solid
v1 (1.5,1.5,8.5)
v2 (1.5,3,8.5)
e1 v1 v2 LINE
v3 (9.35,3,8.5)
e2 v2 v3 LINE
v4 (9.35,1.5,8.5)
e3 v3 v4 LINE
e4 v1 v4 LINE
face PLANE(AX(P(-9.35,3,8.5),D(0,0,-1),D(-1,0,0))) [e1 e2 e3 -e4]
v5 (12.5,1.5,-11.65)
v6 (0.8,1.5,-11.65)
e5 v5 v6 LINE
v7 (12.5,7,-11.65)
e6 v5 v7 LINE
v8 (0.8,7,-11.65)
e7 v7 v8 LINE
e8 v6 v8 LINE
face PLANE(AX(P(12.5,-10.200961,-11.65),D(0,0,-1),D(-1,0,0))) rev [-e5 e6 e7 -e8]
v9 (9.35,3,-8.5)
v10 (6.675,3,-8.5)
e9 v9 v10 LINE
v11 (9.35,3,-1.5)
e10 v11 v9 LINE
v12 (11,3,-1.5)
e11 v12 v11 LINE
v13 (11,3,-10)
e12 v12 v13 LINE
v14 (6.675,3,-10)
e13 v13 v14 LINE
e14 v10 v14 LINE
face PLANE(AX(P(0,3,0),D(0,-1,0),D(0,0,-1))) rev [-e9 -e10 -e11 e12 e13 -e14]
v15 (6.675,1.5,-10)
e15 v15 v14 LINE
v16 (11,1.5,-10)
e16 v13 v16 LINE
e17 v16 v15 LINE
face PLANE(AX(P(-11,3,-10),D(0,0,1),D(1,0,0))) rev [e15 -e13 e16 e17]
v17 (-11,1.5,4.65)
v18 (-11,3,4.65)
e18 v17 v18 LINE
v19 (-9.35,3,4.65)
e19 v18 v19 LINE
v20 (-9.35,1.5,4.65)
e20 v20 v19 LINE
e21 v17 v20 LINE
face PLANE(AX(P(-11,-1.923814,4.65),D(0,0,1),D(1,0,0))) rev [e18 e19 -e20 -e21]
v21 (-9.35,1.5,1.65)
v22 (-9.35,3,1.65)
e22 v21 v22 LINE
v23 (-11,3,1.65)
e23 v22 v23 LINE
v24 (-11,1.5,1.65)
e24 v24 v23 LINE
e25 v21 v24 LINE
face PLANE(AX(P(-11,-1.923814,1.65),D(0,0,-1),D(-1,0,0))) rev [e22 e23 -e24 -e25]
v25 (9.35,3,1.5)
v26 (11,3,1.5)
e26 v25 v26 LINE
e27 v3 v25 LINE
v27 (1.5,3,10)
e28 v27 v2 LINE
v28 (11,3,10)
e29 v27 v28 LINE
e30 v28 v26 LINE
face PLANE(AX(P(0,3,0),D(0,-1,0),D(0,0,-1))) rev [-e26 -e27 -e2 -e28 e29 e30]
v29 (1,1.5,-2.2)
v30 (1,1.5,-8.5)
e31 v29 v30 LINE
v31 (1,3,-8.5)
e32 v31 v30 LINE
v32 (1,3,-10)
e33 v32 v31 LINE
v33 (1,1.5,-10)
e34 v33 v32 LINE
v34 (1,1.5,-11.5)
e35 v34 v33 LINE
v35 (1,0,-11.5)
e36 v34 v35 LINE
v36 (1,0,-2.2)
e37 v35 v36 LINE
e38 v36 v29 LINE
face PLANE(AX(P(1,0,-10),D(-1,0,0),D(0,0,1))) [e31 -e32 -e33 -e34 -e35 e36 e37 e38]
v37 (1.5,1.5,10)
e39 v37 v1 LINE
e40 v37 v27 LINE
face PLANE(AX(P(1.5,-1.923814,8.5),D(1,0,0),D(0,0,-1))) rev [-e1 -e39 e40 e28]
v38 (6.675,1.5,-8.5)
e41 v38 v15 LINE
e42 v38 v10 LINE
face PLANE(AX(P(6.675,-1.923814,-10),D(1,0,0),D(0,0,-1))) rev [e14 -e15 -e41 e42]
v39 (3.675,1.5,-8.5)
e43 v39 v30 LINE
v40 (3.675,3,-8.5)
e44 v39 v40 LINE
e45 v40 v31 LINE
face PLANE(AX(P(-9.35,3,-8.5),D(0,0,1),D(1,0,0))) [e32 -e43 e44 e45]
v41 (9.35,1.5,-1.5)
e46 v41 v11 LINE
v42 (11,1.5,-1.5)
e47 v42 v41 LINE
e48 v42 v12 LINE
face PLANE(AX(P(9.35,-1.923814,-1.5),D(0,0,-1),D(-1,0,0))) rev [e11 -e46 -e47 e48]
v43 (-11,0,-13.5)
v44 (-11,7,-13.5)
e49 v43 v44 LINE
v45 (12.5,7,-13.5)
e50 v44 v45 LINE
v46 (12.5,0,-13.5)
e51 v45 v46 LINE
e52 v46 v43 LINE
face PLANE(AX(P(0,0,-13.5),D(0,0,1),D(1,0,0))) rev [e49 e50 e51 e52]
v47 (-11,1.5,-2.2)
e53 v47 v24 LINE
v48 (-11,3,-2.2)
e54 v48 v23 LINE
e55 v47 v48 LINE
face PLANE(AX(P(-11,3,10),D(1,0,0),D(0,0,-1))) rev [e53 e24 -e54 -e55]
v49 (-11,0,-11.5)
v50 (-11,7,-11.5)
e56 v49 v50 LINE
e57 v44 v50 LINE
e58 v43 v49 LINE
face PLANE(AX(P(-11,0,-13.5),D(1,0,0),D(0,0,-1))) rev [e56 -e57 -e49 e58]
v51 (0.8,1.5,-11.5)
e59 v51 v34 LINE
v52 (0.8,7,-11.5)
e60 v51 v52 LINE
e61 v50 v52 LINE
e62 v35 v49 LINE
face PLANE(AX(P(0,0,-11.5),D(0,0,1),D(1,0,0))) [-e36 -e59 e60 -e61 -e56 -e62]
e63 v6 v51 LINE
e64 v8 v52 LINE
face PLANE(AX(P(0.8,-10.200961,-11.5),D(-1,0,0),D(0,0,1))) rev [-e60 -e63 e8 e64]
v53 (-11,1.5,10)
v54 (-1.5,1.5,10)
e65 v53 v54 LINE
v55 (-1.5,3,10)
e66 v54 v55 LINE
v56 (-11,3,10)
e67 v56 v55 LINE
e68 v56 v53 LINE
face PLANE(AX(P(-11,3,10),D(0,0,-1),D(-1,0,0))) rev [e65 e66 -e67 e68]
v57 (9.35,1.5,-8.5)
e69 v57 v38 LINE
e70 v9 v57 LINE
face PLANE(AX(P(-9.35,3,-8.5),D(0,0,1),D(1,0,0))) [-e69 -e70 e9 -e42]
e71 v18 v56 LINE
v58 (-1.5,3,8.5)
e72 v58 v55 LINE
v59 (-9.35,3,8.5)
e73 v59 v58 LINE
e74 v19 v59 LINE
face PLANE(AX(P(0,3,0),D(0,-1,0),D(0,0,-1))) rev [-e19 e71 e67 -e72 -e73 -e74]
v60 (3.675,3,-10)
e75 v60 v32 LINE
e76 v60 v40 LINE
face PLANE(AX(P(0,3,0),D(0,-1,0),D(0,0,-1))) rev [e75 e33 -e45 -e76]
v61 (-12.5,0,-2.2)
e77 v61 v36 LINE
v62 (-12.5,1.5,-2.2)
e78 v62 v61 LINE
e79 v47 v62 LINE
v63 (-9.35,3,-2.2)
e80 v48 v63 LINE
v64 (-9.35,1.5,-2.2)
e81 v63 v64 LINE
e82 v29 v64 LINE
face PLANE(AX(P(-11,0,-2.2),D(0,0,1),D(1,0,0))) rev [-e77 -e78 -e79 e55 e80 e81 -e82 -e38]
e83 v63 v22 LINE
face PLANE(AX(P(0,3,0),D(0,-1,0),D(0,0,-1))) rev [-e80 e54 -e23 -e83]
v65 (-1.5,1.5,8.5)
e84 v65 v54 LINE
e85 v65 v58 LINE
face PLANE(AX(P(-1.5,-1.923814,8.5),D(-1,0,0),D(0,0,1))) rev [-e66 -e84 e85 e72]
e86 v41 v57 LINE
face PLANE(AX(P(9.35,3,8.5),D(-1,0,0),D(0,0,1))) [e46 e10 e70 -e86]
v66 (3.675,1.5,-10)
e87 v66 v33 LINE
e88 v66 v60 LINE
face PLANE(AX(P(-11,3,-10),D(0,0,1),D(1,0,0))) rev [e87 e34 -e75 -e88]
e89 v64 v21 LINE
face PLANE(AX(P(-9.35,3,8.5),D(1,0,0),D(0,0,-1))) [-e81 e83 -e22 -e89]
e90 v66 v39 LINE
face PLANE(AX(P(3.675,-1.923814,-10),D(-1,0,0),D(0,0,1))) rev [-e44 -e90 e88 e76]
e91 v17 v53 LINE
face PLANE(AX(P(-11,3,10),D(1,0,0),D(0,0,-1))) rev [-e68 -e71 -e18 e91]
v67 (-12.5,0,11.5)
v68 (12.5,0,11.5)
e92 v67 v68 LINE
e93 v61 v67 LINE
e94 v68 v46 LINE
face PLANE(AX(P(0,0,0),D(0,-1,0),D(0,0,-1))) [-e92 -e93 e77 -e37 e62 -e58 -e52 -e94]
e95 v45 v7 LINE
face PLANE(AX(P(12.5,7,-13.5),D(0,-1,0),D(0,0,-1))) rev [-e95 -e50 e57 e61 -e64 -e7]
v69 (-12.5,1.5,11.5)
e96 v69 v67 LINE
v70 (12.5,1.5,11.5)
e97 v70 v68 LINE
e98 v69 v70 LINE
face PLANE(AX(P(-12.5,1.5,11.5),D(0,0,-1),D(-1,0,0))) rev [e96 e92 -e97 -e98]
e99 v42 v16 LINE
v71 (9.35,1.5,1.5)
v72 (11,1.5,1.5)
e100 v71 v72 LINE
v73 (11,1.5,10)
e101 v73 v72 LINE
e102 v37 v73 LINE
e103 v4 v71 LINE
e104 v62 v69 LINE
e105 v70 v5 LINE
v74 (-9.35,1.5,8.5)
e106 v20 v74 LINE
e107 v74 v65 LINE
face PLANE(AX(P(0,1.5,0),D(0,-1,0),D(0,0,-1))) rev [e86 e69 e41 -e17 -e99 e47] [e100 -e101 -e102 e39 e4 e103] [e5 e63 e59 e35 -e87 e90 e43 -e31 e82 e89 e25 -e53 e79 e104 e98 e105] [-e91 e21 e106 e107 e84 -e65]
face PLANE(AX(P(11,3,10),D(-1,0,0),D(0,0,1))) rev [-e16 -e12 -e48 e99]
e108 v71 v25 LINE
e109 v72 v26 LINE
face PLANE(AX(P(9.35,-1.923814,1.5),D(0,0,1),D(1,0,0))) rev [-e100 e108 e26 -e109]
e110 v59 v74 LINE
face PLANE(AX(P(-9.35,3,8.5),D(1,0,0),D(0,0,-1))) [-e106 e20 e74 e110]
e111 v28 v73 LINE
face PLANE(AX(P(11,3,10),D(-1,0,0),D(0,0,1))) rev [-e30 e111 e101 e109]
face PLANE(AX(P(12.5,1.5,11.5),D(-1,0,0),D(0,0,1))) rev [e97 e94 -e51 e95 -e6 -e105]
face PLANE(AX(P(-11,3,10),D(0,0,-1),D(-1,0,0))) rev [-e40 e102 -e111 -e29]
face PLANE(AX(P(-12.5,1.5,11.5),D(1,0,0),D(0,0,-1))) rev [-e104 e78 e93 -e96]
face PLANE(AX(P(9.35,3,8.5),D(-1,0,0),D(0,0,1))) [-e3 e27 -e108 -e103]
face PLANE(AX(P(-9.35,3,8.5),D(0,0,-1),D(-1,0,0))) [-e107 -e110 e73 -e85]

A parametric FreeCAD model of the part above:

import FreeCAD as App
import Part
import Sketcher
from FreeCAD import Vector


def add_polygon(sketch, points):
    """Adds a closed chain of lines whose ends are joined by coincident constraints."""
    first, n = sketch.GeometryCount, len(points)
    for a, b in zip(points, points[1:] + points[:1]):
        sketch.addGeometry(Part.LineSegment(App.Vector(*a, 0), App.Vector(*b, 0)), False)
    for i in range(n):
        sketch.addConstraint(Sketcher.Constraint("Coincident", first + i, 2, first + (i + 1) % n, 1))

doc = App.newDocument("Part")
body = doc.addObject("PartDesign::Body", "Body")

sketch1 = body.newObject("Sketcher::SketchObject", "Sketch")
sketch1.AttachmentSupport = (doc.getObject("XZ_Plane"), [""])
sketch1.MapMode = "FlatFace"
add_polygon(sketch1, [(-12, -12), (-12, 12), (12, 12), (12, -12)])
sketch1.addConstraint([
    Sketcher.Constraint("Vertical", 0),
    Sketcher.Constraint("Horizontal", 1),
    Sketcher.Constraint("Vertical", 2),
    Sketcher.Constraint("Horizontal", 3),
    Sketcher.Constraint("Symmetric", 0, 2, 2, 2, -1, 1),
    Sketcher.Constraint("DistanceX", 1, 1, 1, 2, 25.0),
    Sketcher.Constraint("DistanceY", 0, 1, 0, 2, 23.0),
])
pad1 = body.newObject("PartDesign::Pad", "Pad")
pad1.Profile = sketch1
pad1.Length = 1.5
pad1.Reversed = True

sketch2 = body.newObject("Sketcher::SketchObject", "Sketch001")
sketch2.AttachmentSupport = (doc.getObject("XZ_Plane"), [""])
sketch2.MapMode = "FlatFace"
sketch2.AttachmentOffset = App.Placement(Vector(0, 0, -1.5), App.Rotation())
add_polygon(sketch2, [(-11, -10), (-11, 10), (11, 10), (11, -10)])
add_polygon(sketch2, [(9, 8), (-9, 8), (-9, -8), (9, -8)])
sketch2.addConstraint([
    Sketcher.Constraint("Vertical", 0),
    Sketcher.Constraint("Horizontal", 1),
    Sketcher.Constraint("Vertical", 2),
    Sketcher.Constraint("Horizontal", 3),
    Sketcher.Constraint("Horizontal", 4),
    Sketcher.Constraint("Vertical", 5),
    Sketcher.Constraint("Horizontal", 6),
    Sketcher.Constraint("Vertical", 7),
    Sketcher.Constraint("Symmetric", 0, 2, 2, 2, -1, 1),
    Sketcher.Constraint("Symmetric", 4, 2, 6, 2, -1, 1),
    Sketcher.Constraint("DistanceX", 1, 1, 1, 2, 22.0),
    Sketcher.Constraint("DistanceY", 0, 1, 0, 2, 20.0),
    Sketcher.Constraint("DistanceY", 5, 2, 5, 1, 17.0),
    Sketcher.Constraint("DistanceX", 4, 2, 4, 1, 18.7),
])
pad2 = body.newObject("PartDesign::Pad", "Pad001")
pad2.Profile = sketch2
pad2.Length = 1.5
pad2.Reversed = True

sketch3 = body.newObject("Sketcher::SketchObject", "Sketch002")
sketch3.AttachmentSupport = (doc.getObject("XZ_Plane"), [""])
sketch3.MapMode = "FlatFace"
sketch3.AttachmentOffset = App.Placement(Vector(0, 0, -1.5), App.Rotation())
add_polygon(sketch3, [(-11, -10), (-11, -2), (1, -2), (1, -10)])
sketch3.addConstraint([
    Sketcher.Constraint("Vertical", 0),
    Sketcher.Constraint("Horizontal", 1),
    Sketcher.Constraint("Vertical", 2),
    Sketcher.Constraint("Horizontal", 3),
    Sketcher.Constraint("DistanceX", 1, 1, 1, 2, 12.0),
    Sketcher.Constraint("DistanceY", 0, 1, 0, 2, 7.8),
    Sketcher.Constraint("DistanceX", 0, 2, -1, 1, 11.0),
    Sketcher.Constraint("DistanceY", 2, 2, -1, 1, 10.0),
])
pocket1 = body.newObject("PartDesign::Pocket", "Pocket")
pocket1.Profile = sketch3
pocket1.Type = "ThroughAll"
pocket1.Midplane = True

sketch4 = body.newObject("Sketcher::SketchObject", "Sketch003")
sketch4.AttachmentSupport = (doc.getObject("XZ_Plane"), [""])
sketch4.MapMode = "FlatFace"
add_polygon(sketch4, [(-12, -2), (-12, -12), (1, -12), (1, -2)])
sketch4.addConstraint([
    Sketcher.Constraint("Vertical", 0),
    Sketcher.Constraint("Horizontal", 1),
    Sketcher.Constraint("Vertical", 2),
    Sketcher.Constraint("Horizontal", 3),
    Sketcher.Constraint("DistanceX", 1, 1, 1, 2, 13.5),
    Sketcher.Constraint("DistanceY", 0, 2, 0, 1, 9.3),
    Sketcher.Constraint("DistanceX", -1, 1, 1, 2, 1.0),
    Sketcher.Constraint("DistanceY", 0, 2, -1, 1, 11.5),
])
pocket2 = body.newObject("PartDesign::Pocket", "Pocket001")
pocket2.Profile = sketch4
pocket2.Type = "ThroughAll"

sketch5 = body.newObject("Sketcher::SketchObject", "Sketch004")
sketch5.AttachmentSupport = (doc.getObject("XZ_Plane"), [""])
sketch5.MapMode = "FlatFace"
sketch5.AttachmentOffset = App.Placement(Vector(0, 0, -3), App.Rotation())
add_polygon(sketch5, [(-11, 1.6), (-11, 4.7), (-9.3, 4.7), (-9.3, 1.6)])
add_polygon(sketch5, [(-1.5, 8.5), (-1.5, 10), (1.5, 10), (1.5, 8.5)])
add_polygon(sketch5, [(9.3, -1.5), (9.3, 1.5), (11, 1.5), (11, -1.5)])
add_polygon(sketch5, [(3.7, -10), (3.7, -8.5), (6.7, -8.5), (6.7, -10)])
sketch5.addConstraint([
    Sketcher.Constraint("Vertical", 0),
    Sketcher.Constraint("Horizontal", 1),
    Sketcher.Constraint("Vertical", 2),
    Sketcher.Constraint("Horizontal", 3),
    Sketcher.Constraint("Vertical", 4),
    Sketcher.Constraint("Horizontal", 5),
    Sketcher.Constraint("Vertical", 6),
    Sketcher.Constraint("Horizontal", 7),
    Sketcher.Constraint("Vertical", 8),
    Sketcher.Constraint("Horizontal", 9),
    Sketcher.Constraint("Vertical", 10),
    Sketcher.Constraint("Horizontal", 11),
    Sketcher.Constraint("Vertical", 12),
    Sketcher.Constraint("Horizontal", 13),
    Sketcher.Constraint("Vertical", 14),
    Sketcher.Constraint("Horizontal", 15),
    Sketcher.Constraint("Equal", 3, 9),
    Sketcher.Constraint("Equal", 7, 13),
    Sketcher.Constraint("Equal", 15, 0),
    Sketcher.Constraint("Equal", 2, 8),
    Sketcher.Constraint("Equal", 6, 12),
    Sketcher.Constraint("DistanceX", 5, 1, 5, 2, 3.0),
    Sketcher.Constraint("DistanceY", 4, 1, 4, 2, 1.5),
    Sketcher.Constraint("DistanceX", 0, 2, -1, 1, 11.0),
    Sketcher.Constraint("DistanceY", -1, 1, 4, 2, 10.0),
    Sketcher.Constraint("DistanceX", -1, 1, 9, 2, 11.0),
    Sketcher.Constraint("DistanceY", 14, 2, -1, 1, 10.0),
    Sketcher.Constraint("DistanceY", 8, 2, 6, 2, 7.0),
    Sketcher.Constraint("DistanceX", 1, 1, 1, 2, 1.65),
    Sketcher.Constraint("DistanceX", 4, 2, -1, 1, 1.5),
    Sketcher.Constraint("DistanceY", -1, 1, 0, 2, 4.65),
    Sketcher.Constraint("DistanceX", -1, 1, 12, 2, 3.675),
])
pocket3 = body.newObject("PartDesign::Pocket", "Pocket002")
pocket3.Profile = sketch5
pocket3.Length = 1.5
pocket3.Reversed = True

sketch6 = body.newObject("Sketcher::SketchObject", "Sketch005")
sketch6.AttachmentSupport = (doc.getObject("XY_Plane"), [""])
sketch6.MapMode = "FlatFace"
sketch6.AttachmentOffset = App.Placement(Vector(0, 0, -11.5), App.Rotation())
add_polygon(sketch6, [(12, 7), (12, 0), (-11, 0), (-11, 7)])
sketch6.addConstraint([
    Sketcher.Constraint("Vertical", 0),
    Sketcher.Constraint("Horizontal", 1),
    Sketcher.Constraint("Vertical", 2),
    Sketcher.Constraint("Horizontal", 3),
    Sketcher.Constraint("PointOnObject", 0, 2, -1),
    Sketcher.Constraint("DistanceY", 0, 2, 0, 1, 7.0),
    Sketcher.Constraint("DistanceX", 1, 2, 1, 1, 23.5),
    Sketcher.Constraint("DistanceX", 1, 2, -1, 1, 11.0),
])
pad3 = body.newObject("PartDesign::Pad", "Pad002")
pad3.Profile = sketch6
pad3.Length = 2
pad3.Reversed = True

sketch7 = body.newObject("Sketcher::SketchObject", "Sketch006")
sketch7.AttachmentSupport = (doc.getObject("XZ_Plane"), [""])
sketch7.MapMode = "FlatFace"
sketch7.AttachmentOffset = App.Placement(Vector(0, 0, -7), App.Rotation())
add_polygon(sketch7, [(0.8, -11.65), (0.8, -11.5), (12.5, -11.5), (12.5, -11.65)])
sketch7.addConstraint([
    Sketcher.Constraint("Vertical", 0),
    Sketcher.Constraint("Horizontal", 1),
    Sketcher.Constraint("Vertical", 2),
    Sketcher.Constraint("Horizontal", 3),
    Sketcher.Constraint("DistanceX", 1, 1, 1, 2, 11.7),
    Sketcher.Constraint("DistanceY", 0, 1, 0, 2, 0.15),
    Sketcher.Constraint("DistanceX", -1, 1, 0, 2, 0.8),
    Sketcher.Constraint("DistanceY", 0, 2, -1, 1, 11.5),
])
pocket4 = body.newObject("PartDesign::Pocket", "Pocket003")
pocket4.Profile = sketch7
pocket4.Length = 5.5
pocket4.Reversed = True

doc.recompute()
